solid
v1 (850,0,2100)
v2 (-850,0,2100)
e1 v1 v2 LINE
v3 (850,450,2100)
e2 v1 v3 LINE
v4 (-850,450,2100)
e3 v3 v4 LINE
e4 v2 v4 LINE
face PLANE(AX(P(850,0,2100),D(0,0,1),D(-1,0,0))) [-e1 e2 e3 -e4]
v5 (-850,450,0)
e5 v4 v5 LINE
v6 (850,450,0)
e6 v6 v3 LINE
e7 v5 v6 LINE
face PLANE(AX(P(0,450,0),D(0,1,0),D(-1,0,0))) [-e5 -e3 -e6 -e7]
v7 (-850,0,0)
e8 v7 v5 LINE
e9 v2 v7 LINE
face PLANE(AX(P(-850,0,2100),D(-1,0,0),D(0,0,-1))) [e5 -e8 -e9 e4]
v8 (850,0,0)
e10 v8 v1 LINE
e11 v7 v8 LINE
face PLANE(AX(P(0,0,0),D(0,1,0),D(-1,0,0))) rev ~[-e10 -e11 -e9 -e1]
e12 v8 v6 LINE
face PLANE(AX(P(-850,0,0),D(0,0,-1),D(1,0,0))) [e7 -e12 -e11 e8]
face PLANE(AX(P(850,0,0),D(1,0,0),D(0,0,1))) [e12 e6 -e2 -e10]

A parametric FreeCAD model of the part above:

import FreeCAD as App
import Part
import Sketcher

V = App.Vector


def add_polygon(sketch, points):
    """Adds a closed chain of lines whose ends are joined by coincident constraints."""
    first, n = sketch.GeometryCount, len(points)
    for a, b in zip(points, points[1:] + points[:1]):
        sketch.addGeometry(Part.LineSegment(App.Vector(*a, 0), App.Vector(*b, 0)), False)
    for i in range(n):
        sketch.addConstraint(Sketcher.Constraint("Coincident", first + i, 2, first + (i + 1) % n, 1))

doc = App.newDocument("Part")
body = doc.addObject("PartDesign::Body", "Body")

sketch1 = body.newObject("Sketcher::SketchObject", "Sketch")
sketch1.AttachmentSupport = (doc.getObject("XZ_Plane"), [""])
sketch1.MapMode = "FlatFace"
add_polygon(sketch1, [(850, 0), (-850, 0), (-850, 2100), (850, 2100)])
sketch1.addConstraint(Sketcher.Constraint("Horizontal", 0))
sketch1.addConstraint(Sketcher.Constraint("Vertical", 1))
sketch1.addConstraint(Sketcher.Constraint("Horizontal", 2))
sketch1.addConstraint(Sketcher.Constraint("Vertical", 3))
sketch1.addConstraint(Sketcher.Constraint("Symmetric", 0, 2, 3, 2, -1, 1))
sketch1.addConstraint(Sketcher.Constraint("DistanceX", 0, 2, 0, 1, 1700.0))
sketch1.addConstraint(Sketcher.Constraint("DistanceY", 1, 1, 1, 2, 2100.0))
pad1 = body.newObject("PartDesign::Pad", "Pad")
pad1.Profile = sketch1
pad1.Length = 450
pad1.Reversed = True

doc.recompute()
